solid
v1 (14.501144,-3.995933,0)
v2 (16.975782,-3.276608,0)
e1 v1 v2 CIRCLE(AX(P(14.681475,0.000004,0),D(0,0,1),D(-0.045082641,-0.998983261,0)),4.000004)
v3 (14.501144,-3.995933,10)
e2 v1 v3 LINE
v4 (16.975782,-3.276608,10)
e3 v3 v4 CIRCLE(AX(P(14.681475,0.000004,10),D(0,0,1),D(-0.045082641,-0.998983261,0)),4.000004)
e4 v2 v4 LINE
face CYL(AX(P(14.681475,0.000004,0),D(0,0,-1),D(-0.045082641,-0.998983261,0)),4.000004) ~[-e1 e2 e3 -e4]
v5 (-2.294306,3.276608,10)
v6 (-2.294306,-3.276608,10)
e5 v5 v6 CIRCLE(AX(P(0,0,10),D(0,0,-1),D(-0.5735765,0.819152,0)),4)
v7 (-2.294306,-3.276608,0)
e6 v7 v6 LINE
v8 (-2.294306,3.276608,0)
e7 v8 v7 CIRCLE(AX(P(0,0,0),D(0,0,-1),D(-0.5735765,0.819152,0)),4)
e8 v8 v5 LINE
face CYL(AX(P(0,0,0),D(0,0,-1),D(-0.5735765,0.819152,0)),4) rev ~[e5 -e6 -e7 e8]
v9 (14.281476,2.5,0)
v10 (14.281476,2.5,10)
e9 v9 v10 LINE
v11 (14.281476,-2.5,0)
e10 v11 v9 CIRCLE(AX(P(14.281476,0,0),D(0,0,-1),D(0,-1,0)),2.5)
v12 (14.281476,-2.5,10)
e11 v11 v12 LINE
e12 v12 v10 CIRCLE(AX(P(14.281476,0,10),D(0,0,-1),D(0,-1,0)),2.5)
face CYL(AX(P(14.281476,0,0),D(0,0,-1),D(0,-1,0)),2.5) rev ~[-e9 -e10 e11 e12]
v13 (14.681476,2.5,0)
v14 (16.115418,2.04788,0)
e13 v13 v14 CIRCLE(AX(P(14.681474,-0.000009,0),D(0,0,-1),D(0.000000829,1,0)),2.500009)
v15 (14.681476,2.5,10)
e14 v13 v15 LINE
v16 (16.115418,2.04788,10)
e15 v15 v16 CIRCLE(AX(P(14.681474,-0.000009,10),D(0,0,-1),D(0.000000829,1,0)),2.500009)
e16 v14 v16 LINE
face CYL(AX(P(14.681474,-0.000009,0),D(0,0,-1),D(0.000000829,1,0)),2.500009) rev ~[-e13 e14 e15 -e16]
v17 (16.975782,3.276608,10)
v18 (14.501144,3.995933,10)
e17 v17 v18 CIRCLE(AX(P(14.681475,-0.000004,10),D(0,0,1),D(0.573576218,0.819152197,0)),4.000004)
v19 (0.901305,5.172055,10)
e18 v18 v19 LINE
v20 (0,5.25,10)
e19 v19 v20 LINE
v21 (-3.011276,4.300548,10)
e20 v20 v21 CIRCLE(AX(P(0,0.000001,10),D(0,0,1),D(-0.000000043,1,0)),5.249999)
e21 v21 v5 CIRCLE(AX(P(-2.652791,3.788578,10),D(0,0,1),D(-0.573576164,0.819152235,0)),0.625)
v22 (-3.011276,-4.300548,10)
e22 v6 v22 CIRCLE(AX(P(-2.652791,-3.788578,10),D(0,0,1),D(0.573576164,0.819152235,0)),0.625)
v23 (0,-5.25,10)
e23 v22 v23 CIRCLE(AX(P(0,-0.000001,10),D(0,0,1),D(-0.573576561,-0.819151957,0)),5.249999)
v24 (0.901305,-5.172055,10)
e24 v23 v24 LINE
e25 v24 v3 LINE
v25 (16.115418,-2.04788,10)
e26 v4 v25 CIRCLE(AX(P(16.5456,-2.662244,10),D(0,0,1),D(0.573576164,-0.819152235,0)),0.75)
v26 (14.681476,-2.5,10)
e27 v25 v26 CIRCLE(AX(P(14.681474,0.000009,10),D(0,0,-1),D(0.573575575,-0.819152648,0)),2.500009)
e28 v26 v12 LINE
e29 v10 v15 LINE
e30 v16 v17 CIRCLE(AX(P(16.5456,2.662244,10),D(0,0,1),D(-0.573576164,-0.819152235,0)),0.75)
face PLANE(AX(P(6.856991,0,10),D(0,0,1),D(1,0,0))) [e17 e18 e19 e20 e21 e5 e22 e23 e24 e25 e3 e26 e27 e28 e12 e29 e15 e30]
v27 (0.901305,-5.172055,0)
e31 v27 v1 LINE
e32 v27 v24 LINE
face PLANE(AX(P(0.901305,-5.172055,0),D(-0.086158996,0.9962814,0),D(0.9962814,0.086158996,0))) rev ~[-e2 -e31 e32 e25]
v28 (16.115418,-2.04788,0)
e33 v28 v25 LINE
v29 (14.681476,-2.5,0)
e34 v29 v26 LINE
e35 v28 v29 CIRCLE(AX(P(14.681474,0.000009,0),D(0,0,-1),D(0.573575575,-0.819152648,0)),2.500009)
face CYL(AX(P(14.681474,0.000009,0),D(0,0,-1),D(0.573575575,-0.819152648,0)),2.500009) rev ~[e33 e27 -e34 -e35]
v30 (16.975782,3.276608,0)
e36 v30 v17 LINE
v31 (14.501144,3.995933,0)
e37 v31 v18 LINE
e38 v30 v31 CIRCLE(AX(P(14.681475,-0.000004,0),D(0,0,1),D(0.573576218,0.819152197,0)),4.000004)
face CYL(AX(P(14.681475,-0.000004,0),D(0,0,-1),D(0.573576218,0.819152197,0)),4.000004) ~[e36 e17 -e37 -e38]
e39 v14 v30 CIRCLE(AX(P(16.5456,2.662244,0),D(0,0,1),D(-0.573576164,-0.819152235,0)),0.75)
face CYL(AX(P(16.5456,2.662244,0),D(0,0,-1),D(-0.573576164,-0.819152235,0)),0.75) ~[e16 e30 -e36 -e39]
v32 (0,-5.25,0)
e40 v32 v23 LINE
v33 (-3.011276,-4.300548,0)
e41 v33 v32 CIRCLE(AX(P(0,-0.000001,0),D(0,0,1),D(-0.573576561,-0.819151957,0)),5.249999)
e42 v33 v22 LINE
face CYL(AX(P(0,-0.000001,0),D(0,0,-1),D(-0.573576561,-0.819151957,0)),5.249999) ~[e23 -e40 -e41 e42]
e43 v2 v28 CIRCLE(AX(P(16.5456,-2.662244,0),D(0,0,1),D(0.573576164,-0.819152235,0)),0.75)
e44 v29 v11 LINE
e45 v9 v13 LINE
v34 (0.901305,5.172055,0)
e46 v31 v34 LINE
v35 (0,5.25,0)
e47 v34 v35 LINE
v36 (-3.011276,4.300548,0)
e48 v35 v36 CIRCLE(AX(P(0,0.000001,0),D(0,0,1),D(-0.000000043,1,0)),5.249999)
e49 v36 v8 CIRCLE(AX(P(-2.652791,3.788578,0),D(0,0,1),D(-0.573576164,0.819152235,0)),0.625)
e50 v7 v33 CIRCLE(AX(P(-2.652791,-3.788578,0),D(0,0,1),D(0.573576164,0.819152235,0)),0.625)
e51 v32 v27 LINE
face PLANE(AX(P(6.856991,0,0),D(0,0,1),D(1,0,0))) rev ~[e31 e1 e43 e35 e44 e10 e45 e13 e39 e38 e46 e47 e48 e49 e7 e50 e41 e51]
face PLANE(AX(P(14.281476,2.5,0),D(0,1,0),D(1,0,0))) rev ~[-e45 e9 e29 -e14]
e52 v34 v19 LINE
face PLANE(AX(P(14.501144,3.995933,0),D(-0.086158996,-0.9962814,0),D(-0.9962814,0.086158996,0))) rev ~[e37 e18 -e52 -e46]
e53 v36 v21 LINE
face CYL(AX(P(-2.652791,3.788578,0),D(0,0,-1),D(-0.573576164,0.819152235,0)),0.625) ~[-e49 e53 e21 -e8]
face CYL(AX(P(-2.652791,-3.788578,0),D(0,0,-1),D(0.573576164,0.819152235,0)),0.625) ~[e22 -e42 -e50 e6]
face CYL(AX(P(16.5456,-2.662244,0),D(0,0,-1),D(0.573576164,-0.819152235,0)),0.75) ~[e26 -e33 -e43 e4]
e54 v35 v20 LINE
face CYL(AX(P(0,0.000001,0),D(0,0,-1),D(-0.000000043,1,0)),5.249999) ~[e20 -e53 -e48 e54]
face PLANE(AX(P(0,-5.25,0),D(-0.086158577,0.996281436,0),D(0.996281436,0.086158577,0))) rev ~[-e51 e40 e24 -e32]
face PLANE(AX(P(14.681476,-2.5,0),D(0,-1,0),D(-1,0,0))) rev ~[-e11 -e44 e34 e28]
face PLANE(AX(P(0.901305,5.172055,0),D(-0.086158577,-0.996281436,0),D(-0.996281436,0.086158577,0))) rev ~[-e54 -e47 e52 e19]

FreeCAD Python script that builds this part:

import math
import FreeCAD as App
import Part
import Sketcher
from FreeCAD import Vector

doc = App.newDocument("Part")
body = doc.addObject("PartDesign::Body", "Body")

sketch1 = doc.addObject("Sketcher::SketchObject", "Sketch")
body.addObject(sketch1)
sketch1.AttachmentSupport = (doc.XY_Plane, [""])
sketch1.MapMode = "FlatFace"
sketch1.addGeometry([
    Part.ArcOfCircle(Part.Circle(Vector(0, 0, 0), Vector(0, 0, 1), 4), math.radians(-125.000004), math.radians(125.000004)),
    Part.ArcOfCircle(Part.Circle(Vector(-2.652791, -3.788578, 0), Vector(0, 0, 1), 0.625), math.radians(55.000019), math.radians(235.000019)),
    Part.ArcOfCircle(Part.Circle(Vector(0, -0.000001, 0), Vector(0, 0, 1), 5.249999), math.radians(-125.000009), math.radians(-90.000002)),
    Part.LineSegment(Vector(0, -5.25, 0), Vector(0.901305, -5.172055, 0)),
    Part.LineSegment(Vector(0.901305, -5.172055, 0), Vector(14.501144, -3.995933, 0)),
    Part.ArcOfCircle(Part.Circle(Vector(14.681475, 0.000004, 0), Vector(0, 0, 1), 4.000004), math.radians(-92.583921), math.radians(-55.000015)),
    Part.ArcOfCircle(Part.Circle(Vector(16.5456, -2.662244, 0), Vector(0, 0, 1), 0.75), math.radians(-55.000019), math.radians(124.999981)),
    Part.ArcOfCircle(Part.Circle(Vector(14.681474, 0.000009, 0), Vector(0, 0, 1), 2.500009), math.radians(-89.999953), math.radians(-55.00006)),
    Part.LineSegment(Vector(14.681476, -2.5, 0), Vector(14.281476, -2.5, 0)),
    Part.ArcOfCircle(Part.Circle(Vector(14.281476, 0, 0), Vector(0, 0, 1), 2.5), math.radians(90), math.radians(270)),
    Part.LineSegment(Vector(14.281476, 2.5, 0), Vector(14.681476, 2.5, 0)),
    Part.ArcOfCircle(Part.Circle(Vector(14.681474, -0.000009, 0), Vector(0, 0, 1), 2.500009), math.radians(55.00006), math.radians(89.999953)),
    Part.ArcOfCircle(Part.Circle(Vector(16.5456, 2.662244, 0), Vector(0, 0, 1), 0.75), math.radians(-124.999981), math.radians(55.000019)),
    Part.ArcOfCircle(Part.Circle(Vector(14.681475, -0.000004, 0), Vector(0, 0, 1), 4.000004), math.radians(55.000015), math.radians(92.583921)),
    Part.LineSegment(Vector(14.501144, 3.995933, 0), Vector(0.901305, 5.172055, 0)),
    Part.LineSegment(Vector(0.901305, 5.172055, 0), Vector(0, 5.25, 0)),
    Part.ArcOfCircle(Part.Circle(Vector(0, 0.000001, 0), Vector(0, 0, 1), 5.249999), math.radians(90.000002), math.radians(125.000009)),
    Part.ArcOfCircle(Part.Circle(Vector(-2.652791, 3.788578, 0), Vector(0, 0, 1), 0.625), math.radians(124.999981), math.radians(304.999981)),
], False)
sketch1.addConstraint([
    Sketcher.Constraint("Coincident", 0, 1, 1, 1),
    Sketcher.Constraint("Coincident", 1, 2, 2, 1),
    Sketcher.Constraint("Coincident", 2, 2, 3, 1),
    Sketcher.Constraint("Coincident", 3, 2, 4, 1),
    Sketcher.Constraint("Coincident", 4, 2, 5, 1),
    Sketcher.Constraint("Coincident", 5, 2, 6, 1),
    Sketcher.Constraint("Coincident", 6, 2, 7, 2),
    Sketcher.Constraint("Coincident", 7, 1, 8, 1),
    Sketcher.Constraint("Coincident", 8, 2, 9, 2),
    Sketcher.Constraint("Coincident", 9, 1, 10, 1),
    Sketcher.Constraint("Coincident", 10, 2, 11, 2),
    Sketcher.Constraint("Coincident", 11, 1, 12, 1),
    Sketcher.Constraint("Coincident", 12, 2, 13, 1),
    Sketcher.Constraint("Coincident", 13, 2, 14, 1),
    Sketcher.Constraint("Coincident", 14, 2, 15, 1),
    Sketcher.Constraint("Coincident", 15, 2, 16, 1),
    Sketcher.Constraint("Coincident", 16, 2, 17, 1),
    Sketcher.Constraint("Coincident", 17, 2, 0, 2),
    Sketcher.Constraint("Horizontal", 8),
    Sketcher.Constraint("Horizontal", 10),
    Sketcher.Constraint("Coincident", 0, 3, -1, 1),
    Sketcher.Constraint("Coincident", 2, 3, -1, 1),
    Sketcher.Constraint("Coincident", 16, 3, -1, 1),
    Sketcher.Constraint("Coincident", 7, 3, 5, 3),
    Sketcher.Constraint("Coincident", 13, 3, 5, 3),
    Sketcher.Constraint("PointOnObject", 9, 3, -1),
    Sketcher.Constraint("PointOnObject", 2, 2, -2),
    Sketcher.Constraint("PointOnObject", 15, 2, -2),
    Sketcher.Constraint("Radius", 0, 4.0),
    Sketcher.Constraint("Radius", 9, 2.5),
    Sketcher.Constraint("Radius", 2, 5.249999),
    Sketcher.Constraint("Radius", 6, 0.75),
    Sketcher.Constraint("Radius", 12, 0.75),
    Sketcher.Constraint("Radius", 16, 5.249999),
    Sketcher.Constraint("DistanceX", 8, 2, 8, 1, 0.4),
    Sketcher.Constraint("DistanceX", 10, 1, 10, 2, 0.4),
    Sketcher.Constraint("DistanceX", 9, 3, 5, 3, 0.399999),
    Sketcher.Constraint("DistanceX", 9, 1, 5, 3, 0.399999),
    Sketcher.Constraint("Radius", 7, 2.500009),
    Sketcher.Constraint("Radius", 11, 2.500009),
    Sketcher.Constraint("Radius", 13, 4.000004),
    Sketcher.Constraint("Distance", 4, 13.6506),
    Sketcher.Constraint("Distance", 14, 13.6506),
    Sketcher.Constraint("DistanceX", -1, 1, 6, 3, 16.5456),
    Sketcher.Constraint("DistanceX", -1, 1, 12, 3, 16.5456),
    Sketcher.Constraint("DistanceY", 5, 2, 11, 3, 3.276599),
    Sketcher.Constraint("DistanceY", 7, 3, 12, 2, 3.276599),
    Sketcher.Constraint("Distance", 3, 0.904669),
    Sketcher.Constraint("Distance", 15, 0.904669),
    Sketcher.Constraint("DistanceX", 1, 3, -1, 1, 2.652791),
    Sketcher.Constraint("DistanceX", 17, 3, -1, 1, 2.652791),
    Sketcher.Constraint("DistanceY", 0, 1, -1, 1, 3.276608),
    Sketcher.Constraint("DistanceY", 1, 2, -1, 1, 4.300548),
    Sketcher.Constraint("DistanceX", -1, 1, 5, 2, 16.975782),
    Sketcher.Constraint("DistanceX", -1, 1, 6, 2, 16.115418),
    Sketcher.Constraint("DistanceX", -1, 1, 11, 1, 16.115418),
    Sketcher.Constraint("DistanceX", 0, 1, 3, 2, 3.195611),
    Sketcher.Constraint("DistanceX", 4, 2, 7, 1, 0.180332),
    Sketcher.Constraint("DistanceX", 0, 1, 14, 2, 3.195611),
    Sketcher.Constraint("DistanceY", 17, 3, 16, 2, 0.51197),
    Sketcher.Constraint("DistanceY", 17, 2, 17, 3, 0.51197),
])
pad1 = doc.addObject("PartDesign::Pad", "Pad")
body.addObject(pad1)
pad1.Profile = sketch1
pad1.Length = 10

doc.recompute()
